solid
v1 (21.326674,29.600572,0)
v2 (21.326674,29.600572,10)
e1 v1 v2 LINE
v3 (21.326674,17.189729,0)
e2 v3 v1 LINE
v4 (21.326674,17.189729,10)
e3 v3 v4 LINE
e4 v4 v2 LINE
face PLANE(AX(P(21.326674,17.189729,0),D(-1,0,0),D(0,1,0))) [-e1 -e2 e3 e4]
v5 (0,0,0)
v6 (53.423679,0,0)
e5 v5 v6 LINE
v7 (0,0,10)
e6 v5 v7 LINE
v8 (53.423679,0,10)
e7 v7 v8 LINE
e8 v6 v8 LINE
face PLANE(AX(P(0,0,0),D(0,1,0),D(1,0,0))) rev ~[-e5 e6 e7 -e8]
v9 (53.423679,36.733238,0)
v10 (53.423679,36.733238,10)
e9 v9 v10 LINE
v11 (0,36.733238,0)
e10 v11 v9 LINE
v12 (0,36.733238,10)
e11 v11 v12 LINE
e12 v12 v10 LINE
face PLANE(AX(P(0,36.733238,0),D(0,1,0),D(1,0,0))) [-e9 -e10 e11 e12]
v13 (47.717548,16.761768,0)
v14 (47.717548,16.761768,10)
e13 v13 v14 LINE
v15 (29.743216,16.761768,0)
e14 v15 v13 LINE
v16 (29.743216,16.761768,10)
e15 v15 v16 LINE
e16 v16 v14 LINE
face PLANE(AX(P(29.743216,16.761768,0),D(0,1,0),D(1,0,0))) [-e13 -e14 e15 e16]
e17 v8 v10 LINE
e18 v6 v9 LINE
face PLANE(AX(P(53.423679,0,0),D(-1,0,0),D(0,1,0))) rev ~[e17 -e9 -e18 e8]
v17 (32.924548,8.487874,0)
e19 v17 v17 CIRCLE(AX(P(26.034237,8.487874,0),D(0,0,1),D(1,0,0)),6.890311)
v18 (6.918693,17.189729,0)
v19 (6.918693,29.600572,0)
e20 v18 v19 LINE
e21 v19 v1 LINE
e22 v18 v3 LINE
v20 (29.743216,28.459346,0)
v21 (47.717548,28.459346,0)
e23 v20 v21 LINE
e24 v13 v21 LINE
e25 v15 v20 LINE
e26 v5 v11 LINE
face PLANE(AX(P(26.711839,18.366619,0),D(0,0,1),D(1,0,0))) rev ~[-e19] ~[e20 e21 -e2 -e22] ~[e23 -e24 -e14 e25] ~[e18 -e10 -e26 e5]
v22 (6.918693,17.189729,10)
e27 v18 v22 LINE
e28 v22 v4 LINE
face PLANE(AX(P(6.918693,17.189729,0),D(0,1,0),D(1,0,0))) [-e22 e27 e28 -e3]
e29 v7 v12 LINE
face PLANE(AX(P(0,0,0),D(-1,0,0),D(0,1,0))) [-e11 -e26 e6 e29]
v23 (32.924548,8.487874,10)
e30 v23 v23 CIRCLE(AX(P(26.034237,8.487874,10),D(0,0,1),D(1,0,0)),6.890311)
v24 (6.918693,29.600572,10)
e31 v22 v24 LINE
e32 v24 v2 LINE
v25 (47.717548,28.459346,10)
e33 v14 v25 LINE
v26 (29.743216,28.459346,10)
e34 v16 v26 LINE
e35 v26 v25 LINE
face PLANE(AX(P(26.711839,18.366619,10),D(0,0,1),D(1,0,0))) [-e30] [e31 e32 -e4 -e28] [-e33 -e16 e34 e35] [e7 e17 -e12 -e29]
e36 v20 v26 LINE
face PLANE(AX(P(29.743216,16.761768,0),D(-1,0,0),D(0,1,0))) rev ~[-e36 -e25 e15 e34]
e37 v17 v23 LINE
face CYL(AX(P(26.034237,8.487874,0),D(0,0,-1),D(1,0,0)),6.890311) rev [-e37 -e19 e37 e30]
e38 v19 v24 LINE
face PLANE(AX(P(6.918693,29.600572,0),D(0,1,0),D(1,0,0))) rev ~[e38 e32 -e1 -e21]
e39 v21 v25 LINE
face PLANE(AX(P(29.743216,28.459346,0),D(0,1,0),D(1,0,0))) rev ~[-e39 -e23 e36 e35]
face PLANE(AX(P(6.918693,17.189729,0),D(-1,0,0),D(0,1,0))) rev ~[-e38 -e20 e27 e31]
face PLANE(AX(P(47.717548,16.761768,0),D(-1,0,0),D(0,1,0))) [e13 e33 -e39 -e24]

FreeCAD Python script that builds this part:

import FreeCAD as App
import Part
import Sketcher
from FreeCAD import Vector


def add_polygon(sketch, points):
    """Adds a closed chain of lines whose ends are joined by coincident constraints."""
    first, n = sketch.GeometryCount, len(points)
    for a, b in zip(points, points[1:] + points[:1]):
        sketch.addGeometry(Part.LineSegment(App.Vector(*a, 0), App.Vector(*b, 0)), False)
    for i in range(n):
        sketch.addConstraint(Sketcher.Constraint("Coincident", first + i, 2, first + (i + 1) % n, 1))

doc = App.newDocument("Part")
body = doc.addObject("PartDesign::Body", "Body")

# Sketch on XY plane
sketch1 = body.newObject("Sketcher::SketchObject", "Sketch")
sketch1.AttachmentSupport = (doc.getObject("XY_Plane"), [""])
sketch1.MapMode = "FlatFace"
add_polygon(sketch1, [(0, 37), (0, 0), (53, 0), (53, 37)])  # lines 0-3
sketch1.addGeometry(Part.Circle(Vector(26, 8, 0), Vector(0, 0, 1), 7), False)  # 4
add_polygon(sketch1, [(21, 17), (7, 17), (7, 30), (21, 30)])  # lines 5-8
add_polygon(sketch1, [(48, 17), (30, 17), (30, 28), (48, 28)])  # lines 9-12
sketch1.addConstraint([
    Sketcher.Constraint("Vertical", 0),
    Sketcher.Constraint("Horizontal", 1),
    Sketcher.Constraint("Vertical", 2),
    Sketcher.Constraint("Horizontal", 3),
    Sketcher.Constraint("Horizontal", 5),
    Sketcher.Constraint("Vertical", 6),
    Sketcher.Constraint("Horizontal", 7),
    Sketcher.Constraint("Vertical", 8),
    Sketcher.Constraint("Horizontal", 9),
    Sketcher.Constraint("Vertical", 10),
    Sketcher.Constraint("Horizontal", 11),
    Sketcher.Constraint("Vertical", 12),
    Sketcher.Constraint("Coincident", 0, 2, -1, 1),
    Sketcher.Constraint("Diameter", 4, 13.780622),
    Sketcher.Constraint("DistanceX", 1, 1, 1, 2, 53.423679),
    Sketcher.Constraint("DistanceX", 5, 2, 5, 1, 14.407981),
    Sketcher.Constraint("DistanceX", 9, 2, 9, 1, 17.974331),
    Sketcher.Constraint("DistanceY", 10, 1, 10, 2, 11.697579),
    Sketcher.Constraint("DistanceY", 4, 3, 6, 2, 21.112699),
    Sketcher.Constraint("DistanceY", 0, 2, 0, 1, 36.733238),
    Sketcher.Constraint("DistanceY", 6, 1, 6, 2, 12.410843),
    Sketcher.Constraint("DistanceY", -1, 1, 5, 2, 17.189729),
    Sketcher.Constraint("DistanceX", 4, 3, 1, 2, 27.389442),
    Sketcher.Constraint("DistanceY", 9, 2, 8, 2, 0.427962),
    Sketcher.Constraint("DistanceX", 4, 3, 9, 2, 3.708979),
    Sketcher.Constraint("DistanceX", -1, 1, 5, 2, 6.918693),
])
pad1 = body.newObject("PartDesign::Pad", "Pad")
pad1.Profile = sketch1
pad1.Length = 10

doc.recompute()
